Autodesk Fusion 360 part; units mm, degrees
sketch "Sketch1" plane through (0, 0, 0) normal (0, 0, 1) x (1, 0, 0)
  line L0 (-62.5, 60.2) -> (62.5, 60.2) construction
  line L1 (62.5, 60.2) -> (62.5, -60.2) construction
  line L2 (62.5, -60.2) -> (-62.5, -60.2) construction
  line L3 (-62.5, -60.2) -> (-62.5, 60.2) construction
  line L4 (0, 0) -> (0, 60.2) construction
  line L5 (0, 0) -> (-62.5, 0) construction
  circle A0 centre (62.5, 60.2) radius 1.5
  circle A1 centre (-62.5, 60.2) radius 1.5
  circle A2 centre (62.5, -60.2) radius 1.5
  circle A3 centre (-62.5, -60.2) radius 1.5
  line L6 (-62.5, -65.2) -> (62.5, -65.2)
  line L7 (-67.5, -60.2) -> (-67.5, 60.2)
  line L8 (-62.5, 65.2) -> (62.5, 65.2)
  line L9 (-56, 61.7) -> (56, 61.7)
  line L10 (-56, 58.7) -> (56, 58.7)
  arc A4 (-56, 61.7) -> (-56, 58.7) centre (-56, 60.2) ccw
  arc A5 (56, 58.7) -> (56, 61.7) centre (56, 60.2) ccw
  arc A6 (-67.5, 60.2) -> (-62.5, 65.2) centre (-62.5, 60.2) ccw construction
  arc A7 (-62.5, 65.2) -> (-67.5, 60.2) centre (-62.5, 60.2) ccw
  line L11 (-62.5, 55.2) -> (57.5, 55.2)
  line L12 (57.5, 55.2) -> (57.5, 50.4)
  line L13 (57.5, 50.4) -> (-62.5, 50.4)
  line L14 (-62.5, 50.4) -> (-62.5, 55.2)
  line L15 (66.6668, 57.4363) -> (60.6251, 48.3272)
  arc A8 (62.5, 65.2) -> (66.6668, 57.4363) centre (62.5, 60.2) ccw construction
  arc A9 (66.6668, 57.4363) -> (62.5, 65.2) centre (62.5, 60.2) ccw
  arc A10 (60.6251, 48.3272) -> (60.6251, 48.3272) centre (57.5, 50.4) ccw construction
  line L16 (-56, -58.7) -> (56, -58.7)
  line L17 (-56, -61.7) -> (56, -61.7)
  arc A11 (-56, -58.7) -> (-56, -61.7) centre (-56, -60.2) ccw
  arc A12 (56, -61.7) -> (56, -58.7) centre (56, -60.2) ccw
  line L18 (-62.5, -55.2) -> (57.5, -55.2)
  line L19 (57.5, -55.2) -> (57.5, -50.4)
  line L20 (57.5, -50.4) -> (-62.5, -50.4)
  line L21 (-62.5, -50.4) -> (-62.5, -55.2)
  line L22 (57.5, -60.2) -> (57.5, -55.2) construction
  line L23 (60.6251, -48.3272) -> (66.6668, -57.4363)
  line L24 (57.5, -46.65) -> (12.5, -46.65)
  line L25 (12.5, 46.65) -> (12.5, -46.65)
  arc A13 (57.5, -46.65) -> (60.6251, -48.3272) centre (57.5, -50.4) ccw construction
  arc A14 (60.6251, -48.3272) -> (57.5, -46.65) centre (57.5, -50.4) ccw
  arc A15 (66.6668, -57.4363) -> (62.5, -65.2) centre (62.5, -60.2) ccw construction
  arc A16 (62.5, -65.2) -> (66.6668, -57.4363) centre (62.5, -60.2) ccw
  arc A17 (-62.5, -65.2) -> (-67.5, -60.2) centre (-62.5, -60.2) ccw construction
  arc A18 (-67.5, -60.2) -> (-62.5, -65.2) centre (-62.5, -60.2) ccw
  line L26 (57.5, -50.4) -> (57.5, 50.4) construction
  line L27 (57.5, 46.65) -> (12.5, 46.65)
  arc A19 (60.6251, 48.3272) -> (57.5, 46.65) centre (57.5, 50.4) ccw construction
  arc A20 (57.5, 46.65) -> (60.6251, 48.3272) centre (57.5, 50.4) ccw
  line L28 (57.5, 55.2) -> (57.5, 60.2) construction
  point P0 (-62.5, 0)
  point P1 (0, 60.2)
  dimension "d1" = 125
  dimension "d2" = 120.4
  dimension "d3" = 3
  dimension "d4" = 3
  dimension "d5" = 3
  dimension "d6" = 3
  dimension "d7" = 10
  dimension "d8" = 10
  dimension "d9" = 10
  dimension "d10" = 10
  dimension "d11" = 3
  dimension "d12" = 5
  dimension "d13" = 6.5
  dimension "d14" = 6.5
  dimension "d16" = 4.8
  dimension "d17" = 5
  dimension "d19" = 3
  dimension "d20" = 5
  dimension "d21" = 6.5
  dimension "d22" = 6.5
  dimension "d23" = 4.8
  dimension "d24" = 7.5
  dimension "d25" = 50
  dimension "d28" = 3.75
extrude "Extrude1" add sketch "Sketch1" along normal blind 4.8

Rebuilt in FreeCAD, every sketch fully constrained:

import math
import FreeCAD as App
import Part
import Sketcher
Q = App.Units.Quantity

doc = App.newDocument("Part")
body = doc.addObject("PartDesign::Body", "Body")

# Sketch on XY plane
sketch1 = body.newObject("Sketcher::SketchObject", "Sketch")
sketch1.AttachmentSupport = (doc.getObject("XY_Plane"), [""])
sketch1.MapMode = "FlatFace"
sketch1.addGeometry([
    Part.ArcOfCircle(Part.Circle(App.Vector(-62.5, -60.2, 0), App.Vector(0, 0, 1), 5), math.radians(180), math.radians(270)),  # 0
    Part.LineSegment(App.Vector(-62.5, -65.2, 0), App.Vector(62.5, -65.2, 0)),  # 1
    Part.ArcOfCircle(Part.Circle(App.Vector(62.5, -60.2, 0), App.Vector(0, 0, 1), 5.000026), math.radians(-90), math.radians(33.554995)),  # 2
    Part.LineSegment(App.Vector(66.6668, -57.4363, 0), App.Vector(60.6251, -48.3272, 0)),  # 3
    Part.ArcOfCircle(Part.Circle(App.Vector(57.5, -50.4, 0), App.Vector(0, 0, 1), 3.75), math.radians(33.555313), math.radians(90)),  # 4
    Part.LineSegment(App.Vector(57.5, -46.65, 0), App.Vector(12.5, -46.65, 0)),  # 5
    Part.LineSegment(App.Vector(12.5, -46.65, 0), App.Vector(12.5, 46.65, 0)),  # 6
    Part.LineSegment(App.Vector(12.5, 46.65, 0), App.Vector(57.5, 46.65, 0)),  # 7
    Part.ArcOfCircle(Part.Circle(App.Vector(57.5, 50.4, 0), App.Vector(0, 0, 1), 3.750033), math.radians(-90), math.radians(-33.555313)),  # 8
    Part.LineSegment(App.Vector(60.6251, 48.3272, 0), App.Vector(66.6668, 57.4363, 0)),  # 9
    Part.ArcOfCircle(Part.Circle(App.Vector(62.5, 60.2, 0), App.Vector(0, 0, 1), 5), math.radians(-33.554995), math.radians(90)),  # 10
    Part.LineSegment(App.Vector(62.5, 65.2, 0), App.Vector(-62.5, 65.2, 0)),  # 11
    Part.ArcOfCircle(Part.Circle(App.Vector(-62.5, 60.2, 0), App.Vector(0, 0, 1), 5), math.radians(90), math.radians(180)),  # 12
    Part.LineSegment(App.Vector(-67.5, 60.2, 0), App.Vector(-67.5, -60.2, 0)),  # 13
    Part.Circle(App.Vector(-62.5, -60.2, 0), App.Vector(0, 0, 1), 1.5),  # 14
    Part.ArcOfCircle(Part.Circle(App.Vector(-56, -60.2, 0), App.Vector(0, 0, 1), 1.5), math.radians(90), math.radians(270)),  # 15
    Part.LineSegment(App.Vector(-56, -58.7, 0), App.Vector(56, -58.7, 0)),  # 16
    Part.ArcOfCircle(Part.Circle(App.Vector(56, -60.2, 0), App.Vector(0, 0, 1), 1.5), math.radians(-90), math.radians(90)),  # 17
    Part.LineSegment(App.Vector(56, -61.7, 0), App.Vector(-56, -61.7, 0)),  # 18
    Part.LineSegment(App.Vector(57.5, -55.2, 0), App.Vector(-62.5, -55.2, 0)),  # 19
    Part.LineSegment(App.Vector(-62.5, -55.2, 0), App.Vector(-62.5, -50.4, 0)),  # 20
    Part.LineSegment(App.Vector(-62.5, -50.4, 0), App.Vector(57.5, -50.4, 0)),  # 21
    Part.LineSegment(App.Vector(57.5, -50.4, 0), App.Vector(57.5, -55.2, 0)),  # 22
    Part.Circle(App.Vector(62.5, -60.2, 0), App.Vector(0, 0, 1), 1.5),  # 23
    Part.Circle(App.Vector(-62.5, 60.2, 0), App.Vector(0, 0, 1), 1.5),  # 24
    Part.LineSegment(App.Vector(-62.5, 50.4, 0), App.Vector(-62.5, 55.2, 0)),  # 25
    Part.LineSegment(App.Vector(-62.5, 55.2, 0), App.Vector(57.5, 55.2, 0)),  # 26
    Part.LineSegment(App.Vector(57.5, 55.2, 0), App.Vector(57.5, 50.4, 0)),  # 27
    Part.LineSegment(App.Vector(57.5, 50.4, 0), App.Vector(-62.5, 50.4, 0)),  # 28
    Part.ArcOfCircle(Part.Circle(App.Vector(-56, 60.2, 0), App.Vector(0, 0, 1), 1.5), math.radians(90), math.radians(270)),  # 29
    Part.LineSegment(App.Vector(-56, 61.7, 0), App.Vector(56, 61.7, 0)),  # 30
    Part.ArcOfCircle(Part.Circle(App.Vector(56, 60.2, 0), App.Vector(0, 0, 1), 1.5), math.radians(-90), math.radians(90)),  # 31
    Part.LineSegment(App.Vector(56, 58.7, 0), App.Vector(-56, 58.7, 0)),  # 32
    Part.Circle(App.Vector(62.5, 60.2, 0), App.Vector(0, 0, 1), 1.5),  # 33
], False)
sketch1.addConstraint([
    Sketcher.Constraint("Tangent", 0, 2, 1, 1),
    Sketcher.Constraint("Tangent", 1, 2, 2, 1),
    Sketcher.Constraint("Tangent", 2, 2, 3, 1),
    Sketcher.Constraint("Tangent", 3, 2, 4, 1),
    Sketcher.Constraint("Tangent", 4, 2, 5, 1),
    Sketcher.Constraint("Coincident", 5, 2, 6, 1),
    Sketcher.Constraint("Coincident", 6, 2, 7, 1),
    Sketcher.Constraint("Tangent", 7, 2, 8, 1),
    Sketcher.Constraint("Tangent", 8, 2, 9, 1),
    Sketcher.Constraint("Tangent", 9, 2, 10, 1),
    Sketcher.Constraint("Tangent", 10, 2, 11, 1),
    Sketcher.Constraint("Tangent", 11, 2, 12, 1),
    Sketcher.Constraint("Tangent", 12, 2, 13, 1),
    Sketcher.Constraint("Tangent", 13, 2, 0, 1),
    Sketcher.Constraint("Tangent", 15, 1, 16, 1),
    Sketcher.Constraint("Tangent", 16, 2, 17, 2),
    Sketcher.Constraint("Tangent", 17, 1, 18, 1),
    Sketcher.Constraint("Tangent", 18, 2, 15, 2),
    Sketcher.Constraint("Coincident", 19, 2, 20, 1),
    Sketcher.Constraint("Coincident", 20, 2, 21, 1),
    Sketcher.Constraint("Coincident", 21, 2, 22, 1),
    Sketcher.Constraint("Coincident", 22, 2, 19, 1),
    Sketcher.Constraint("Coincident", 25, 2, 26, 1),
    Sketcher.Constraint("Coincident", 26, 2, 27, 1),
    Sketcher.Constraint("Coincident", 27, 2, 28, 1),
    Sketcher.Constraint("Coincident", 28, 2, 25, 1),
    Sketcher.Constraint("Tangent", 29, 1, 30, 1),
    Sketcher.Constraint("Tangent", 30, 2, 31, 2),
    Sketcher.Constraint("Tangent", 31, 1, 32, 1),
    Sketcher.Constraint("Tangent", 32, 2, 29, 2),
    Sketcher.Constraint("Horizontal", 1),
    Sketcher.Constraint("Horizontal", 5),
    Sketcher.Constraint("Vertical", 6),
    Sketcher.Constraint("Horizontal", 7),
    Sketcher.Constraint("Horizontal", 11),
    Sketcher.Constraint("Vertical", 13),
    Sketcher.Constraint("Horizontal", 16),
    Sketcher.Constraint("Horizontal", 18),
    Sketcher.Constraint("Horizontal", 19),
    Sketcher.Constraint("Vertical", 20),
    Sketcher.Constraint("Horizontal", 21),
    Sketcher.Constraint("Vertical", 22),
    Sketcher.Constraint("Vertical", 25),
    Sketcher.Constraint("Horizontal", 26),
    Sketcher.Constraint("Vertical", 27),
    Sketcher.Constraint("Horizontal", 28),
    Sketcher.Constraint("Horizontal", 30),
    Sketcher.Constraint("Horizontal", 32),
    Sketcher.Constraint("Coincident", 14, 3, 0, 3),
    Sketcher.Constraint("Coincident", 23, 3, 2, 3),
    Sketcher.Constraint("Coincident", 24, 3, 12, 3),
    Sketcher.Constraint("Coincident", 33, 3, 10, 3),
    Sketcher.Constraint("Coincident", 21, 2, 4, 3),
    Sketcher.Constraint("Coincident", 27, 2, 8, 3),
    Sketcher.Constraint("Equal", 0, 2),
    Sketcher.Constraint("Equal", 4, 8),
    Sketcher.Constraint("Equal", 2, 10),
    Sketcher.Constraint("Equal", 10, 12),
    Sketcher.Constraint("Equal", 14, 15),
    Sketcher.Constraint("Equal", 17, 23),
    Sketcher.Constraint("Equal", 23, 24),
    Sketcher.Constraint("Equal", 24, 29),
    Sketcher.Constraint("Equal", 31, 33),
    Sketcher.Constraint("Symmetric", 0, 3, 10, 3, -1, 1),
    Sketcher.Constraint("Symmetric", 17, 3, 29, 3, -1, 1),
    Sketcher.Constraint("Symmetric", 4, 3, 8, 3, -1),
    Sketcher.Constraint("Symmetric", 19, 2, 25, 2, -1),
    Sketcher.Constraint("Horizontal", 14, 3, 15, 3),
    Sketcher.Constraint("Vertical", 2, 3, 10, 3),
    Sketcher.Constraint("Vertical", 15, 3, 29, 3),
    Sketcher.Constraint("Vertical", 17, 3, 31, 3),
    Sketcher.Constraint("Vertical", 11, 2, 19, 2),
    Sketcher.Constraint("Diameter", 14, Q("3 mm")),
    Sketcher.Constraint("Radius", 0, Q("5 mm")),
    Sketcher.Constraint("DistanceX", 1, 1, 1, 2, Q("125 mm")),
    Sketcher.Constraint("Radius", 4, Q("3.75 mm")),
    Sketcher.Constraint("DistanceY", 13, 2, 13, 1, Q("120.4 mm")),
    Sketcher.Constraint("DistanceY", 20, 1, 20, 2, Q("4.8 mm")),
    Sketcher.Constraint("DistanceX", 4, 3, 2, 3, Q("5 mm")),
    Sketcher.Constraint("DistanceX", 5, 2, 2, 3, Q("50 mm")),
    Sketcher.Constraint("DistanceY", 0, 3, 19, 2, Q("5 mm")),
    Sketcher.Constraint("DistanceX", 0, 3, 15, 3, Q("6.5 mm")),
])
pad1 = body.newObject("PartDesign::Pad", "Pad")
pad1.Profile = sketch1
pad1.Length = 4.8

doc.recompute()
